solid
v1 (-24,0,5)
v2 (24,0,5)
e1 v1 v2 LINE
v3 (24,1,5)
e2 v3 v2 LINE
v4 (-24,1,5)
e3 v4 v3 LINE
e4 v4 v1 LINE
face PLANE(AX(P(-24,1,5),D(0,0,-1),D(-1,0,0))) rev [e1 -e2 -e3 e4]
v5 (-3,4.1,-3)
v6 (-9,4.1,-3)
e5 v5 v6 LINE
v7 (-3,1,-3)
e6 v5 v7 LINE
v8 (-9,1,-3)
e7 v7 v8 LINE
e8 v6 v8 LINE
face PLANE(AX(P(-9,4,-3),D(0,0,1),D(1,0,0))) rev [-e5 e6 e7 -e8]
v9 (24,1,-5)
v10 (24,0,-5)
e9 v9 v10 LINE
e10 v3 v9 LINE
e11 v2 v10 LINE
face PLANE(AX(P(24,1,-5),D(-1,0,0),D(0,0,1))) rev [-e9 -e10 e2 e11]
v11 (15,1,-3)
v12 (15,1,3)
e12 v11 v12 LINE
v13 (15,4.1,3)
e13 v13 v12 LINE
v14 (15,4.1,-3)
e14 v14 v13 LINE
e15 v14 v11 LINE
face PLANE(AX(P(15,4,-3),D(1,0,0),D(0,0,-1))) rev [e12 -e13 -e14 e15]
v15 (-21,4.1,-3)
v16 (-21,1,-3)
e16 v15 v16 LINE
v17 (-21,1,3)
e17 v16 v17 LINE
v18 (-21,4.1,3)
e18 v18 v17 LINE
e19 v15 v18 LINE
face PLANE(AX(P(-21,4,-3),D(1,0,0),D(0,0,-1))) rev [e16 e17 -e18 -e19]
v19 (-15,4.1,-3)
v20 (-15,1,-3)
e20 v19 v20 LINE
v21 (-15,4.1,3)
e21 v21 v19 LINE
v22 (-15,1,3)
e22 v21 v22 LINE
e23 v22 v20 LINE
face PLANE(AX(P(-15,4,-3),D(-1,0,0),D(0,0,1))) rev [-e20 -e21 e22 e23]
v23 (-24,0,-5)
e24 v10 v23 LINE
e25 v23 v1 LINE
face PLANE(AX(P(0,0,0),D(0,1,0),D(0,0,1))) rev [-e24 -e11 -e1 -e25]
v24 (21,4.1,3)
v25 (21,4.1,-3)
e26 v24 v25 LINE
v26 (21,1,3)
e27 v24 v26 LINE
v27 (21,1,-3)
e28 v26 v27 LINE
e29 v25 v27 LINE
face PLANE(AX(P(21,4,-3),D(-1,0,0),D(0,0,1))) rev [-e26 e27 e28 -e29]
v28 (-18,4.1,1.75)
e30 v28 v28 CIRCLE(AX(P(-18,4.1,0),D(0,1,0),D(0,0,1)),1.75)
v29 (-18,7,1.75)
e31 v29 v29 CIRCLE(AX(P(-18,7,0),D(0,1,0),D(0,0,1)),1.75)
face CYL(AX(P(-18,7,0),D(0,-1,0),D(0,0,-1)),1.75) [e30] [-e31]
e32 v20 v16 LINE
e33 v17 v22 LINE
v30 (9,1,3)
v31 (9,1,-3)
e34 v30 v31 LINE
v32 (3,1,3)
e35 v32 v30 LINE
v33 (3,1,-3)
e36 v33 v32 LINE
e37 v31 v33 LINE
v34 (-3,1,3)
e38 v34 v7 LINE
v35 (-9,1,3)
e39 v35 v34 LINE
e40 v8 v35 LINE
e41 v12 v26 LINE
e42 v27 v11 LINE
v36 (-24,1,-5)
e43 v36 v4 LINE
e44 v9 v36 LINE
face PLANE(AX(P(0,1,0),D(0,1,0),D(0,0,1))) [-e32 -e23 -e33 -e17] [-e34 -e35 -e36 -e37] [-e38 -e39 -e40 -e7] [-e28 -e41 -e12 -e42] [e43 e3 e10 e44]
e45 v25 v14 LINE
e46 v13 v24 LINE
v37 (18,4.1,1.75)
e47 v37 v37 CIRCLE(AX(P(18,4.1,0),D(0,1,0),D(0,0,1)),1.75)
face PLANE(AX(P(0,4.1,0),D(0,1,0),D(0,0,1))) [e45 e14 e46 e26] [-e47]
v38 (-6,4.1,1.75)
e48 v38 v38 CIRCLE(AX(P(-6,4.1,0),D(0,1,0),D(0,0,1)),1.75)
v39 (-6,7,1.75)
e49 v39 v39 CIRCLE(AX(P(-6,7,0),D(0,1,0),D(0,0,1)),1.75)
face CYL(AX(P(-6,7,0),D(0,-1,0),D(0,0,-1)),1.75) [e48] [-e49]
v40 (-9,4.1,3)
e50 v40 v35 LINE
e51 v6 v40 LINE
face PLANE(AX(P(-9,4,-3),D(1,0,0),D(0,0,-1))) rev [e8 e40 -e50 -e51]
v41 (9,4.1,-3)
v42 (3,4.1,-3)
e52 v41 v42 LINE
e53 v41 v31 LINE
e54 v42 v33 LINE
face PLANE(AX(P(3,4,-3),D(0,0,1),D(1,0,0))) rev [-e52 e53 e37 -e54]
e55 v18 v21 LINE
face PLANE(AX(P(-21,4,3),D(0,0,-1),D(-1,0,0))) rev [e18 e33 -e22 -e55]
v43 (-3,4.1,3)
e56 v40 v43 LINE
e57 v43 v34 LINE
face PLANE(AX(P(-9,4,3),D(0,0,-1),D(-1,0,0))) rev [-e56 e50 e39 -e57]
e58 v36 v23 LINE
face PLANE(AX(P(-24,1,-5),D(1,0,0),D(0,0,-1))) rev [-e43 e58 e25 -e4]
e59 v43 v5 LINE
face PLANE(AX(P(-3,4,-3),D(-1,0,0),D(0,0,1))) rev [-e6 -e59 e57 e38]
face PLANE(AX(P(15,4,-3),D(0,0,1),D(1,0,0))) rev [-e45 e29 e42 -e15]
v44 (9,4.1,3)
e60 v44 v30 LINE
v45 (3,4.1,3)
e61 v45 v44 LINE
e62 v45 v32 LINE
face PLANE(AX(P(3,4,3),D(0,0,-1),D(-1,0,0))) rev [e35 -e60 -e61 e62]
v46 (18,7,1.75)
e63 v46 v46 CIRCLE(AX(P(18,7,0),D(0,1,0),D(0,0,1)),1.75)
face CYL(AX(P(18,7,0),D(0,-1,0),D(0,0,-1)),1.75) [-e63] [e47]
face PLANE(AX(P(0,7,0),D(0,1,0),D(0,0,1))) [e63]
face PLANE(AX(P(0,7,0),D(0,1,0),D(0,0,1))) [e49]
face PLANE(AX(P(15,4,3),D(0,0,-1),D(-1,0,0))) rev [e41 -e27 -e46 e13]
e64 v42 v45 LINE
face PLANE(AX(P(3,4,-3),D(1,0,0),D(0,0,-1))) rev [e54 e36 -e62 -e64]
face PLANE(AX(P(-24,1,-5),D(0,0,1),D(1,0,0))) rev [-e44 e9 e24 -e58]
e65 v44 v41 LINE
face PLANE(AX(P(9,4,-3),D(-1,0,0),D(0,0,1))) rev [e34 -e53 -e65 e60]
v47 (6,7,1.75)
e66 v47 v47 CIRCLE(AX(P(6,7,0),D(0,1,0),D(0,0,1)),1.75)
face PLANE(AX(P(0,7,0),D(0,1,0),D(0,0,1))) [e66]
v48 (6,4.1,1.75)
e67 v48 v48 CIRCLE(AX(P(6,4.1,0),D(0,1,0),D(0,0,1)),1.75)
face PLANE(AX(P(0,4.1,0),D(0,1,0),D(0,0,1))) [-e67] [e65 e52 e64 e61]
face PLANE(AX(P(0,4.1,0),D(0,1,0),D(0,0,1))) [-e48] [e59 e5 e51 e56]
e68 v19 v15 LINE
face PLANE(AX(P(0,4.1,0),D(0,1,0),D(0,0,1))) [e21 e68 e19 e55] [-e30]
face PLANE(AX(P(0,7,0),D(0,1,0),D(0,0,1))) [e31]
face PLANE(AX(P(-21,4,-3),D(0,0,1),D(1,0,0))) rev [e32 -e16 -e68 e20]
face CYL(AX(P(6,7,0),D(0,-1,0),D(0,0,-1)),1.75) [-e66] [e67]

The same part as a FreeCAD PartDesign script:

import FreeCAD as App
import Part
import Sketcher
Q = App.Units.Quantity

doc = App.newDocument("Part")
body = doc.addObject("PartDesign::Body", "Body")

# Sketch on XZ plane
sketch1 = body.newObject("Sketcher::SketchObject", "Sketch")
sketch1.AttachmentSupport = (doc.getObject("XZ_Plane"), [""])
sketch1.MapMode = "FlatFace"
sketch1.addGeometry([
    Part.LineSegment(App.Vector(-24, -5, 0), App.Vector(-24, 5, 0)),
    Part.LineSegment(App.Vector(-24, 5, 0), App.Vector(24, 5, 0)),
    Part.LineSegment(App.Vector(24, 5, 0), App.Vector(24, -5, 0)),
    Part.LineSegment(App.Vector(24, -5, 0), App.Vector(-24, -5, 0)),
], False)
sketch1.addConstraint([
    Sketcher.Constraint("Coincident", 0, 2, 1, 1),
    Sketcher.Constraint("Coincident", 1, 2, 2, 1),
    Sketcher.Constraint("Coincident", 2, 2, 3, 1),
    Sketcher.Constraint("Coincident", 3, 2, 0, 1),
    Sketcher.Constraint("Vertical", 0),
    Sketcher.Constraint("Horizontal", 1),
    Sketcher.Constraint("Vertical", 2),
    Sketcher.Constraint("Horizontal", 3),
    Sketcher.Constraint("Symmetric", 0, 2, 2, 2, -1, 1),
    Sketcher.Constraint("DistanceX", 1, 1, 1, 2, Q("48 mm")),
    Sketcher.Constraint("DistanceY", 0, 1, 0, 2, Q("10 mm")),
])
pad1 = body.newObject("PartDesign::Pad", "Pad")
pad1.Profile = sketch1
pad1.Length = 1
pad1.Reversed = True

# Sketch on XZ plane
sketch2 = body.newObject("Sketcher::SketchObject", "Sketch001")
sketch2.AttachmentSupport = (doc.getObject("XZ_Plane"), [""])
sketch2.MapMode = "FlatFace"
sketch2.AttachmentOffset = App.Placement(App.Vector(0, 0, -1), App.Rotation())
sketch2.addGeometry([
    Part.LineSegment(App.Vector(-9, -3, 0), App.Vector(-9, 3, 0)),  # 0
    Part.LineSegment(App.Vector(-9, 3, 0), App.Vector(-3, 3, 0)),  # 1
    Part.LineSegment(App.Vector(-3, 3, 0), App.Vector(-3, -3, 0)),  # 2
    Part.LineSegment(App.Vector(-3, -3, 0), App.Vector(-9, -3, 0)),  # 3
    Part.LineSegment(App.Vector(-21, -3, 0), App.Vector(-21, 3, 0)),  # 4
    Part.LineSegment(App.Vector(-21, 3, 0), App.Vector(-15, 3, 0)),  # 5
    Part.LineSegment(App.Vector(-15, 3, 0), App.Vector(-15, -3, 0)),  # 6
    Part.LineSegment(App.Vector(-15, -3, 0), App.Vector(-21, -3, 0)),  # 7
    Part.LineSegment(App.Vector(3, -3, 0), App.Vector(3, 3, 0)),  # 8
    Part.LineSegment(App.Vector(3, 3, 0), App.Vector(9, 3, 0)),  # 9
    Part.LineSegment(App.Vector(9, 3, 0), App.Vector(9, -3, 0)),  # 10
    Part.LineSegment(App.Vector(9, -3, 0), App.Vector(3, -3, 0)),  # 11
    Part.LineSegment(App.Vector(15, -3, 0), App.Vector(15, 3, 0)),  # 12
    Part.LineSegment(App.Vector(15, 3, 0), App.Vector(21, 3, 0)),  # 13
    Part.LineSegment(App.Vector(21, 3, 0), App.Vector(21, -3, 0)),  # 14
    Part.LineSegment(App.Vector(21, -3, 0), App.Vector(15, -3, 0)),  # 15
], False)
sketch2.addConstraint([
    Sketcher.Constraint("Coincident", 0, 2, 1, 1),
    Sketcher.Constraint("Coincident", 1, 2, 2, 1),
    Sketcher.Constraint("Coincident", 2, 2, 3, 1),
    Sketcher.Constraint("Coincident", 3, 2, 0, 1),
    Sketcher.Constraint("Coincident", 4, 2, 5, 1),
    Sketcher.Constraint("Coincident", 5, 2, 6, 1),
    Sketcher.Constraint("Coincident", 6, 2, 7, 1),
    Sketcher.Constraint("Coincident", 7, 2, 4, 1),
    Sketcher.Constraint("Coincident", 8, 2, 9, 1),
    Sketcher.Constraint("Coincident", 9, 2, 10, 1),
    Sketcher.Constraint("Coincident", 10, 2, 11, 1),
    Sketcher.Constraint("Coincident", 11, 2, 8, 1),
    Sketcher.Constraint("Coincident", 12, 2, 13, 1),
    Sketcher.Constraint("Coincident", 13, 2, 14, 1),
    Sketcher.Constraint("Coincident", 14, 2, 15, 1),
    Sketcher.Constraint("Coincident", 15, 2, 12, 1),
    Sketcher.Constraint("Vertical", 0),
    Sketcher.Constraint("Horizontal", 1),
    Sketcher.Constraint("Vertical", 2),
    Sketcher.Constraint("Horizontal", 3),
    Sketcher.Constraint("Vertical", 4),
    Sketcher.Constraint("Horizontal", 5),
    Sketcher.Constraint("Vertical", 6),
    Sketcher.Constraint("Horizontal", 7),
    Sketcher.Constraint("Vertical", 8),
    Sketcher.Constraint("Horizontal", 9),
    Sketcher.Constraint("Vertical", 10),
    Sketcher.Constraint("Horizontal", 11),
    Sketcher.Constraint("Vertical", 12),
    Sketcher.Constraint("Horizontal", 13),
    Sketcher.Constraint("Vertical", 14),
    Sketcher.Constraint("Horizontal", 15),
    Sketcher.Constraint("Symmetric", 2, 2, 8, 2, -1, 1),
    Sketcher.Constraint("Symmetric", 0, 2, 10, 2, -1, 1),
    Sketcher.Constraint("Symmetric", 6, 2, 12, 2, -1, 1),
    Sketcher.Constraint("Symmetric", 4, 2, 14, 2, -1, 1),
    Sketcher.Constraint("Horizontal", 1, 2, 4, 2),
    Sketcher.Constraint("Horizontal", 3, 2, 6, 2),
    Sketcher.Constraint("Horizontal", 5, 2, 8, 2),
    Sketcher.Constraint("Equal", 3, 5),
    Sketcher.Constraint("Equal", 15, 0),
    Sketcher.Constraint("DistanceX", 1, 1, 1, 2, Q("6 mm")),
    Sketcher.Constraint("DistanceX", 0, 2, -1, 1, Q("9 mm")),
    Sketcher.Constraint("DistanceX", 4, 2, -1, 1, Q("21 mm")),
])
pad2 = body.newObject("PartDesign::Pad", "Pad001")
pad2.Profile = sketch2
pad2.Length = 3
pad2.Reversed = True

# Sketch on XZ plane
sketch3 = body.newObject("Sketcher::SketchObject", "Sketch002")
sketch3.AttachmentSupport = (doc.getObject("XZ_Plane"), [""])
sketch3.MapMode = "FlatFace"
sketch3.AttachmentOffset = App.Placement(App.Vector(0, 0, -1), App.Rotation())
sketch3.addGeometry([
    Part.LineSegment(App.Vector(-9, -3, 0), App.Vector(-9, 3, 0)),  # 0
    Part.LineSegment(App.Vector(-9, 3, 0), App.Vector(-3, 3, 0)),  # 1
    Part.LineSegment(App.Vector(-3, 3, 0), App.Vector(-3, -3, 0)),  # 2
    Part.LineSegment(App.Vector(-3, -3, 0), App.Vector(-9, -3, 0)),  # 3
    Part.LineSegment(App.Vector(-21, -3, 0), App.Vector(-21, 3, 0)),  # 4
    Part.LineSegment(App.Vector(-21, 3, 0), App.Vector(-15, 3, 0)),  # 5
    Part.LineSegment(App.Vector(-15, 3, 0), App.Vector(-15, -3, 0)),  # 6
    Part.LineSegment(App.Vector(-15, -3, 0), App.Vector(-21, -3, 0)),  # 7
    Part.LineSegment(App.Vector(3, -3, 0), App.Vector(3, 3, 0)),  # 8
    Part.LineSegment(App.Vector(3, 3, 0), App.Vector(9, 3, 0)),  # 9
    Part.LineSegment(App.Vector(9, 3, 0), App.Vector(9, -3, 0)),  # 10
    Part.LineSegment(App.Vector(9, -3, 0), App.Vector(3, -3, 0)),  # 11
    Part.LineSegment(App.Vector(15, -3, 0), App.Vector(15, 3, 0)),  # 12
    Part.LineSegment(App.Vector(15, 3, 0), App.Vector(21, 3, 0)),  # 13
    Part.LineSegment(App.Vector(21, 3, 0), App.Vector(21, -3, 0)),  # 14
    Part.LineSegment(App.Vector(21, -3, 0), App.Vector(15, -3, 0)),  # 15
], False)
sketch3.addConstraint([
    Sketcher.Constraint("Coincident", 0, 2, 1, 1),
    Sketcher.Constraint("Coincident", 1, 2, 2, 1),
    Sketcher.Constraint("Coincident", 2, 2, 3, 1),
    Sketcher.Constraint("Coincident", 3, 2, 0, 1),
    Sketcher.Constraint("Coincident", 4, 2, 5, 1),
    Sketcher.Constraint("Coincident", 5, 2, 6, 1),
    Sketcher.Constraint("Coincident", 6, 2, 7, 1),
    Sketcher.Constraint("Coincident", 7, 2, 4, 1),
    Sketcher.Constraint("Coincident", 8, 2, 9, 1),
    Sketcher.Constraint("Coincident", 9, 2, 10, 1),
    Sketcher.Constraint("Coincident", 10, 2, 11, 1),
    Sketcher.Constraint("Coincident", 11, 2, 8, 1),
    Sketcher.Constraint("Coincident", 12, 2, 13, 1),
    Sketcher.Constraint("Coincident", 13, 2, 14, 1),
    Sketcher.Constraint("Coincident", 14, 2, 15, 1),
    Sketcher.Constraint("Coincident", 15, 2, 12, 1),
    Sketcher.Constraint("Vertical", 0),
    Sketcher.Constraint("Horizontal", 1),
    Sketcher.Constraint("Vertical", 2),
    Sketcher.Constraint("Horizontal", 3),
    Sketcher.Constraint("Vertical", 4),
    Sketcher.Constraint("Horizontal", 5),
    Sketcher.Constraint("Vertical", 6),
    Sketcher.Constraint("Horizontal", 7),
    Sketcher.Constraint("Vertical", 8),
    Sketcher.Constraint("Horizontal", 9),
    Sketcher.Constraint("Vertical", 10),
    Sketcher.Constraint("Horizontal", 11),
    Sketcher.Constraint("Vertical", 12),
    Sketcher.Constraint("Horizontal", 13),
    Sketcher.Constraint("Vertical", 14),
    Sketcher.Constraint("Horizontal", 15),
    Sketcher.Constraint("Symmetric", 2, 2, 8, 2, -1, 1),
    Sketcher.Constraint("Symmetric", 0, 2, 10, 2, -1, 1),
    Sketcher.Constraint("Symmetric", 6, 2, 12, 2, -1, 1),
    Sketcher.Constraint("Symmetric", 4, 2, 14, 2, -1, 1),
    Sketcher.Constraint("Horizontal", 1, 2, 4, 2),
    Sketcher.Constraint("Horizontal", 3, 2, 6, 2),
    Sketcher.Constraint("Horizontal", 5, 2, 8, 2),
    Sketcher.Constraint("Equal", 3, 5),
    Sketcher.Constraint("Equal", 15, 0),
    Sketcher.Constraint("DistanceX", 1, 1, 1, 2, Q("6 mm")),
    Sketcher.Constraint("DistanceX", 0, 2, -1, 1, Q("9 mm")),
    Sketcher.Constraint("DistanceX", 4, 2, -1, 1, Q("21 mm")),
])
pad3 = body.newObject("PartDesign::Pad", "Pad002")
pad3.Profile = sketch3
pad3.Length = 3.1
pad3.Reversed = True

# Sketch on XZ plane
sketch4 = body.newObject("Sketcher::SketchObject", "Sketch003")
sketch4.AttachmentSupport = (doc.getObject("XZ_Plane"), [""])
sketch4.MapMode = "FlatFace"
sketch4.AttachmentOffset = App.Placement(App.Vector(0, 0, -4.1), App.Rotation())
sketch4.addGeometry([
    Part.Circle(App.Vector(-18, 0, 0), App.Vector(0, 0, 1), 1.75),
    Part.Circle(App.Vector(18, 0, 0), App.Vector(0, 0, 1), 1.75),
    Part.Circle(App.Vector(6, 0, 0), App.Vector(0, 0, 1), 1.75),
    Part.Circle(App.Vector(-6, 0, 0), App.Vector(0, 0, 1), 1.75),
], False)
sketch4.addConstraint([
    Sketcher.Constraint("Equal", 0, 1),
    Sketcher.Constraint("Equal", 1, 2),
    Sketcher.Constraint("Equal", 2, 3),
    Sketcher.Constraint("Symmetric", 0, 3, 1, 3, -1, 1),
    Sketcher.Constraint("Symmetric", 2, 3, 3, 3, -1, 1),
    Sketcher.Constraint("PointOnObject", 0, 3, -1),
    Sketcher.Constraint("PointOnObject", 2, 3, -1),
    Sketcher.Constraint("Diameter", 0, Q("3.5 mm")),
    Sketcher.Constraint("DistanceX", 0, 3, -1, 1, Q("18 mm")),
    Sketcher.Constraint("DistanceX", -1, 1, 2, 3, Q("6 mm")),
])
pad4 = body.newObject("PartDesign::Pad", "Pad003")
pad4.Profile = sketch4
pad4.Length = 2.9
pad4.Reversed = True

doc.recompute()
